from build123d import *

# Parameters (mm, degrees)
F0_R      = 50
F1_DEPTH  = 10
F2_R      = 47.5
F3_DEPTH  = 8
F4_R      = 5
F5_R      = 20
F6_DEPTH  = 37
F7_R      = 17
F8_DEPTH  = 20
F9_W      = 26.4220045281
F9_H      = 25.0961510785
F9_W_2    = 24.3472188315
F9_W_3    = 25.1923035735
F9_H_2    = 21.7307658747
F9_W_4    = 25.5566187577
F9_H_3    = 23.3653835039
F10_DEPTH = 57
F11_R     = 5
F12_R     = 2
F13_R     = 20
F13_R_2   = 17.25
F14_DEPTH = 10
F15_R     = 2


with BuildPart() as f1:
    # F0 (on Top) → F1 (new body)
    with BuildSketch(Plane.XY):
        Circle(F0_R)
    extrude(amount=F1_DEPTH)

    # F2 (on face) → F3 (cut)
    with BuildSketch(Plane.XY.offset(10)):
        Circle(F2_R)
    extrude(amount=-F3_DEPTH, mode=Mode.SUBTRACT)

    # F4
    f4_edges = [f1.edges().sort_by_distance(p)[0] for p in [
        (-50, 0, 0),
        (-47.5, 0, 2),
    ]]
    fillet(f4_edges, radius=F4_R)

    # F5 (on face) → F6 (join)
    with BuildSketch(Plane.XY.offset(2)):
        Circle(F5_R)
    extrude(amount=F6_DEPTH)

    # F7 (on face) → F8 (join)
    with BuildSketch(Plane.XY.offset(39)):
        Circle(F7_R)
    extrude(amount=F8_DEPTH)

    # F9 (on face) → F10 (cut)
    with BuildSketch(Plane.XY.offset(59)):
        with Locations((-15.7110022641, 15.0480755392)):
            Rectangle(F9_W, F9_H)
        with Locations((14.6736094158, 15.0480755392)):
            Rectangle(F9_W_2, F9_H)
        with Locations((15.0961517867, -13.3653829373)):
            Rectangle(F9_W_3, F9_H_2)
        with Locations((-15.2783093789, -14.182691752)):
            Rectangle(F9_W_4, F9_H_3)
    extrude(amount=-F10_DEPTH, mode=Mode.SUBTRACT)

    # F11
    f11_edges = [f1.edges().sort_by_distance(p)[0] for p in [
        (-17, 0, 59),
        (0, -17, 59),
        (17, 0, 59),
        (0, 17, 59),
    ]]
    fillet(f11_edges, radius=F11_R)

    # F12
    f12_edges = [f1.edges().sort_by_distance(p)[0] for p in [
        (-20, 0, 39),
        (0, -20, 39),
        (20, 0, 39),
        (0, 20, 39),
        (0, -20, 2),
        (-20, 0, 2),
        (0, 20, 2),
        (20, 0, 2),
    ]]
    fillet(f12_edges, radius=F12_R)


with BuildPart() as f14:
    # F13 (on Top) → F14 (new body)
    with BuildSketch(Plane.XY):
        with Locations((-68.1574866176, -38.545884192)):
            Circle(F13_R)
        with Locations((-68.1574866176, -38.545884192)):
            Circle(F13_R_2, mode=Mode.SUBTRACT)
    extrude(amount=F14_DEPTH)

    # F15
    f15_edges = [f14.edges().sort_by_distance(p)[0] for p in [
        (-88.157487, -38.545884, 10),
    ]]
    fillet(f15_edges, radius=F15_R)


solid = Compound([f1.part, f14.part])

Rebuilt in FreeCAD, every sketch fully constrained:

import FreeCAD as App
import Part
import Sketcher
Q = App.Units.Quantity


def edges_at(feature, points):
    """Names of the edges that pass closest to the given points."""
    edges = feature.Shape.Edges
    near = lambda p: min(range(len(edges)), key=lambda i: edges[i].distToShape(Part.Vertex(*p))[0])
    return sorted({f"Edge{near(p) + 1}" for p in points})


def add_polygon(sketch, points):
    """Adds a closed chain of lines whose ends are joined by coincident constraints."""
    first, n = sketch.GeometryCount, len(points)
    for a, b in zip(points, points[1:] + points[:1]):
        sketch.addGeometry(Part.LineSegment(App.Vector(*a, 0), App.Vector(*b, 0)), False)
    for i in range(n):
        sketch.addConstraint(Sketcher.Constraint("Coincident", first + i, 2, first + (i + 1) % n, 1))

doc = App.newDocument("Part")
params = doc.addObject("Spreadsheet::Sheet", "Params")
for row, (alias, value) in enumerate([
    ("sketch1_diameter", "100 mm"),
    ("pad1_length", "10 mm"),
    ("sketch2_diameter", "95 mm"),
    ("pocket1_length", "8 mm"),
    ("fillet_radius", "5 mm"),
    ("sketch3_diameter", "40 mm"),
    ("pad2_length", "37 mm"),
    ("sketch4_diameter", "34 mm"),
    ("pad3_length", "20 mm"),
    ("pocket2_length", "57 mm"),
    ("fillet2_radius", "5 mm"),
    ("fillet3_radius", "2 mm"),
    ("sketch6_diameter", "40 mm"),
    ("sketch6_diameter2", "34.5 mm"),
    ("pad4_length", "10 mm"),
    ("fillet4_radius", "2 mm"),
], start=1):
    params.set(f"A{row}", alias)
    params.set(f"B{row}", "=" + value)
    params.setAlias(f"B{row}", alias)

body = doc.addObject("PartDesign::Body", "Body")

sketch1 = body.newObject("Sketcher::SketchObject", "Sketch")
sketch1.AttachmentSupport = (doc.getObject("XY_Plane"), [""])
sketch1.MapMode = "FlatFace"
sketch1.addGeometry(Part.Circle(App.Vector(0, 0, 0), App.Vector(0, 0, 1), 50), False)
sketch1.addConstraint(Sketcher.Constraint("Coincident", 0, 3, -1, 1))
sketch1.addConstraint(Sketcher.Constraint("Diameter", 0, Q("100 mm")))
sketch1.setExpression("Constraints[1]", "Params.sketch1_diameter")
pad1 = body.newObject("PartDesign::Pad", "Pad")
pad1.Profile = sketch1
pad1.setExpression("Length", "Params.pad1_length")

sketch2 = body.newObject("Sketcher::SketchObject", "Sketch001")
sketch2.AttachmentSupport = (doc.getObject("XY_Plane"), [""])
sketch2.MapMode = "FlatFace"
sketch2.AttachmentOffset = App.Placement(App.Vector(0, 0, 10), App.Rotation())
sketch2.addGeometry(Part.Circle(App.Vector(0, 0, 0), App.Vector(0, 0, 1), 47.5), False)
sketch2.addConstraint(Sketcher.Constraint("Coincident", 0, 3, -1, 1))
sketch2.addConstraint(Sketcher.Constraint("Diameter", 0, Q("95 mm")))
sketch2.setExpression("Constraints[1]", "Params.sketch2_diameter")
pocket1 = body.newObject("PartDesign::Pocket", "Pocket")
pocket1.Profile = sketch2
pocket1.setExpression("Length", "Params.pocket1_length")
doc.recompute()

fillet = body.newObject("PartDesign::Fillet", "Fillet")
fillet.Base = (pocket1, edges_at(pocket1, [(-50, 0, 0), (-47.5, 0, 2)]))
fillet.setExpression("Radius", "Params.fillet_radius")

sketch3 = body.newObject("Sketcher::SketchObject", "Sketch002")
sketch3.AttachmentSupport = (doc.getObject("XY_Plane"), [""])
sketch3.MapMode = "FlatFace"
sketch3.AttachmentOffset = App.Placement(App.Vector(0, 0, 2), App.Rotation())
sketch3.addGeometry(Part.Circle(App.Vector(0, 0, 0), App.Vector(0, 0, 1), 20), False)
sketch3.addConstraint(Sketcher.Constraint("Coincident", 0, 3, -1, 1))
sketch3.addConstraint(Sketcher.Constraint("Diameter", 0, Q("40 mm")))
sketch3.setExpression("Constraints[1]", "Params.sketch3_diameter")
pad2 = body.newObject("PartDesign::Pad", "Pad001")
pad2.Profile = sketch3
pad2.setExpression("Length", "Params.pad2_length")

sketch4 = body.newObject("Sketcher::SketchObject", "Sketch003")
sketch4.AttachmentSupport = (doc.getObject("XY_Plane"), [""])
sketch4.MapMode = "FlatFace"
sketch4.AttachmentOffset = App.Placement(App.Vector(0, 0, 39), App.Rotation())
sketch4.addGeometry(Part.Circle(App.Vector(0, 0, 0), App.Vector(0, 0, 1), 17), False)
sketch4.addConstraint(Sketcher.Constraint("Coincident", 0, 3, -1, 1))
sketch4.addConstraint(Sketcher.Constraint("Diameter", 0, Q("34 mm")))
sketch4.setExpression("Constraints[1]", "Params.sketch4_diameter")
pad3 = body.newObject("PartDesign::Pad", "Pad002")
pad3.Profile = sketch4
pad3.setExpression("Length", "Params.pad3_length")

sketch5 = body.newObject("Sketcher::SketchObject", "Sketch004")
sketch5.AttachmentSupport = (doc.getObject("XY_Plane"), [""])
sketch5.MapMode = "FlatFace"
sketch5.AttachmentOffset = App.Placement(App.Vector(0, 0, 59), App.Rotation())
add_polygon(sketch5, [(-28.922005, 27.596151), (-28.922005, 2.5), (-2.5, 2.5), (-2.5, 27.596151)])
add_polygon(sketch5, [(2.5, 27.596151), (2.5, 2.5), (26.847219, 2.5), (26.847219, 27.596151)])
add_polygon(sketch5, [(2.5, -2.5), (2.5, -24.230766), (27.692304, -24.230766), (27.692304, -2.5)])
add_polygon(sketch5, [(-28.056619, -2.5), (-28.056619, -25.865384), (-2.5, -25.865384), (-2.5, -2.5)])
sketch5.addConstraint(Sketcher.Constraint("Vertical", 0))
sketch5.addConstraint(Sketcher.Constraint("Horizontal", 1))
sketch5.addConstraint(Sketcher.Constraint("Vertical", 2))
sketch5.addConstraint(Sketcher.Constraint("Horizontal", 3))
sketch5.addConstraint(Sketcher.Constraint("Vertical", 4))
sketch5.addConstraint(Sketcher.Constraint("Horizontal", 5))
sketch5.addConstraint(Sketcher.Constraint("Vertical", 6))
sketch5.addConstraint(Sketcher.Constraint("Horizontal", 7))
sketch5.addConstraint(Sketcher.Constraint("Vertical", 8))
sketch5.addConstraint(Sketcher.Constraint("Horizontal", 9))
sketch5.addConstraint(Sketcher.Constraint("Vertical", 10))
sketch5.addConstraint(Sketcher.Constraint("Horizontal", 11))
sketch5.addConstraint(Sketcher.Constraint("Vertical", 12))
sketch5.addConstraint(Sketcher.Constraint("Horizontal", 13))
sketch5.addConstraint(Sketcher.Constraint("Vertical", 14))
sketch5.addConstraint(Sketcher.Constraint("Horizontal", 15))
sketch5.addConstraint(Sketcher.Constraint("Symmetric", 1, 2, 11, 2, -1, 1))
sketch5.addConstraint(Sketcher.Constraint("Symmetric", 4, 2, 14, 2, -1, 1))
sketch5.addConstraint(Sketcher.Constraint("Symmetric", 1, 2, 4, 2, -2))
sketch5.addConstraint(Sketcher.Constraint("Horizontal", 3, 2, 6, 2))
sketch5.addConstraint(Sketcher.Constraint("DistanceX", 1, 2, 4, 2, Q("5 mm")))
sketch5.addConstraint(Sketcher.Constraint("DistanceY", 10, 2, 5, 2, Q("5 mm")))
sketch5.addConstraint(Sketcher.Constraint("DistanceX", 5, 1, 5, 2, Q("24.347219 mm")))
sketch5.addConstraint(Sketcher.Constraint("DistanceX", 13, 1, 13, 2, Q("25.556619 mm")))
sketch5.addConstraint(Sketcher.Constraint("DistanceY", 0, 2, 0, 1, Q("25.096151 mm")))
sketch5.addConstraint(Sketcher.Constraint("DistanceX", 1, 1, 1, 2, Q("26.422005 mm")))
sketch5.addConstraint(Sketcher.Constraint("DistanceX", 9, 1, 9, 2, Q("25.192304 mm")))
sketch5.addConstraint(Sketcher.Constraint("DistanceY", 8, 2, 8, 1, Q("21.730766 mm")))
sketch5.addConstraint(Sketcher.Constraint("DistanceY", 12, 2, 12, 1, Q("23.365384 mm")))
pocket2 = body.newObject("PartDesign::Pocket", "Pocket001")
pocket2.Profile = sketch5
pocket2.setExpression("Length", "Params.pocket2_length")
doc.recompute()

fillet2 = body.newObject("PartDesign::Fillet", "Fillet001")
fillet2.Base = (pocket2, edges_at(pocket2, [
    (-17, 0, 59),
    (0, -17, 59),
    (17, 0, 59),
    (0, 17, 59),
]))
fillet2.setExpression("Radius", "Params.fillet2_radius")
doc.recompute()

fillet3 = body.newObject("PartDesign::Fillet", "Fillet002")
fillet3.Base = (fillet2, edges_at(fillet2, [
    (-20, 0, 39),
    (0, -20, 39),
    (20, 0, 39),
    (0, 20, 39),
    (0, -20, 2),
    (-20, 0, 2),
    (0, 20, 2),
    (20, 0, 2),
]))
fillet3.setExpression("Radius", "Params.fillet3_radius")
body2 = doc.addObject("PartDesign::Body", "Body001")

sketch6 = body2.newObject("Sketcher::SketchObject", "Sketch005")
sketch6.AttachmentSupport = (doc.getObject("XY_Plane001"), [""])
sketch6.MapMode = "FlatFace"
sketch6.addGeometry(Part.Circle(App.Vector(-68.157487, -38.545884, 0), App.Vector(0, 0, 1), 20), False)
sketch6.addGeometry(Part.Circle(App.Vector(-68.157487, -38.545884, 0), App.Vector(0, 0, 1), 17.25), False)
sketch6.addConstraint(Sketcher.Constraint("Coincident", 1, 3, 0, 3))
sketch6.addConstraint(Sketcher.Constraint("Diameter", 0, Q("40 mm")))
sketch6.addConstraint(Sketcher.Constraint("Diameter", 1, Q("34.5 mm")))
sketch6.addConstraint(Sketcher.Constraint("DistanceX", 0, 3, -1, 1, Q("68.157487 mm")))
sketch6.addConstraint(Sketcher.Constraint("DistanceY", 0, 3, -1, 1, Q("38.545884 mm")))
sketch6.setExpression("Constraints[1]", "Params.sketch6_diameter")
sketch6.setExpression("Constraints[2]", "Params.sketch6_diameter2")
pad4 = body2.newObject("PartDesign::Pad", "Pad003")
pad4.Profile = sketch6
pad4.setExpression("Length", "Params.pad4_length")
doc.recompute()

fillet4 = body2.newObject("PartDesign::Fillet", "Fillet003")
fillet4.Base = (pad4, edges_at(pad4, [(-88.157, -38.546, 10)]))
fillet4.setExpression("Radius", "Params.fillet4_radius")

doc.recompute()
